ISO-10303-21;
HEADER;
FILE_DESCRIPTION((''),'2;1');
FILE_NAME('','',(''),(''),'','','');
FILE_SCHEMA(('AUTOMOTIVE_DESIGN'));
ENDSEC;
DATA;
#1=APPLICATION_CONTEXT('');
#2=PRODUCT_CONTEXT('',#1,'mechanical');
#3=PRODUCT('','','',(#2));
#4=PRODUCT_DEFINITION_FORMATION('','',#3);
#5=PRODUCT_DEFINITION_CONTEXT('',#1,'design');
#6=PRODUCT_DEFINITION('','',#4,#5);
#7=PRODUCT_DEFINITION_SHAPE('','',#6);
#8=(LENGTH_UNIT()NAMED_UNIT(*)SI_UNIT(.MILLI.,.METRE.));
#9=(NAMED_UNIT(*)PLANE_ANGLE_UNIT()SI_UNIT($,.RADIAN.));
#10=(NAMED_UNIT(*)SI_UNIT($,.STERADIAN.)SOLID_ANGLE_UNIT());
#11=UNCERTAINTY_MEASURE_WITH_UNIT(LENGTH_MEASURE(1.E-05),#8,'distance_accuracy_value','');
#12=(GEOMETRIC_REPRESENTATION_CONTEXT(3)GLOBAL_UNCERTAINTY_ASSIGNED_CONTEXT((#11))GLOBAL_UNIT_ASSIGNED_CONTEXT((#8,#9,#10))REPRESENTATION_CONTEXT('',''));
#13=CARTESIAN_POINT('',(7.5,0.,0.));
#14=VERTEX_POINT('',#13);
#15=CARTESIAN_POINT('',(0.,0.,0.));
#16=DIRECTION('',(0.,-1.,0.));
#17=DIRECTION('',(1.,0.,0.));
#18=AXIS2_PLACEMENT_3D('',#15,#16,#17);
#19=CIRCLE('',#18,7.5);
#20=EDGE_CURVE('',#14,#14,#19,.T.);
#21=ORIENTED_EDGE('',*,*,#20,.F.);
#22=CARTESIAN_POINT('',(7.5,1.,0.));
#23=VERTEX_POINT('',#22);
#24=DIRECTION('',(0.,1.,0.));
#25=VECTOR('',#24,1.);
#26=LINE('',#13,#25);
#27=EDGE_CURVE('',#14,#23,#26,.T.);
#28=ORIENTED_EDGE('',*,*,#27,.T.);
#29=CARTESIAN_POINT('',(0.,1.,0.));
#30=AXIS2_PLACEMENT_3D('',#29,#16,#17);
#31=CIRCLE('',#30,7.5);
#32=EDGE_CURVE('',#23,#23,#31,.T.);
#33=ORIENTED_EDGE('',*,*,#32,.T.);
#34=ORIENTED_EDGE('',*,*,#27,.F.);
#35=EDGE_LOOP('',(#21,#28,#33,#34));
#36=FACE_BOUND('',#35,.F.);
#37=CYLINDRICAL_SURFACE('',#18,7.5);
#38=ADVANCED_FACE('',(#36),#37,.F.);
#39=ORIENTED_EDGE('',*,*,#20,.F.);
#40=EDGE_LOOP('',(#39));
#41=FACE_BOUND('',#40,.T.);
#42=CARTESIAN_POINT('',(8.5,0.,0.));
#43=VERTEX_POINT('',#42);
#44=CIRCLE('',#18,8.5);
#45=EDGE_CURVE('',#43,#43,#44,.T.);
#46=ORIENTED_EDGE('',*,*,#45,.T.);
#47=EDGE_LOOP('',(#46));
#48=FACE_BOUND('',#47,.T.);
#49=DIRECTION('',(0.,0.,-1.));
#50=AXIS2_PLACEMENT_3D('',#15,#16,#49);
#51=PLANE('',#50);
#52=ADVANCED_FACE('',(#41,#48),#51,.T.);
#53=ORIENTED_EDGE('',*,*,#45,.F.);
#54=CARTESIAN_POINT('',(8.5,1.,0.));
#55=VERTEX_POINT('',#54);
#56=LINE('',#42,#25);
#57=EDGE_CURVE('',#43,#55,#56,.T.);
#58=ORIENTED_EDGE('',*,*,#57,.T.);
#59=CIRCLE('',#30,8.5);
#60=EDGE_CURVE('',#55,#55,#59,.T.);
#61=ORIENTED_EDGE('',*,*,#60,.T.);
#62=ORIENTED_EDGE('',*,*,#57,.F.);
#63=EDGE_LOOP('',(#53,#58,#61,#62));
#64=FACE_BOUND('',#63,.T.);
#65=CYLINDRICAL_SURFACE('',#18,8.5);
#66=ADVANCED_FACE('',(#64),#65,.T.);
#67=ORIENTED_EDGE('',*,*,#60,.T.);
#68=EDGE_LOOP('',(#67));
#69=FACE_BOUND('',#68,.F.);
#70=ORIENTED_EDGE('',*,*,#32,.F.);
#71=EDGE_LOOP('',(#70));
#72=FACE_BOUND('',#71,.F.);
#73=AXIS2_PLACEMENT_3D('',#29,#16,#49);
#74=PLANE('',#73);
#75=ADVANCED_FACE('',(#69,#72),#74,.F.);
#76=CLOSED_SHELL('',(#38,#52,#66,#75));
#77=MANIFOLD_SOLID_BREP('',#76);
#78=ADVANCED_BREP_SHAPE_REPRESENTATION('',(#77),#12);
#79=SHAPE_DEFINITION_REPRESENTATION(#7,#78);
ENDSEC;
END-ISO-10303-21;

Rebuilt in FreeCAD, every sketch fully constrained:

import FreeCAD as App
import Part
import Sketcher
Q = App.Units.Quantity

doc = App.newDocument("Part")
body = doc.addObject("PartDesign::Body", "Body")

# Sketch on XZ plane
sketch1 = body.newObject("Sketcher::SketchObject", "Sketch")
sketch1.AttachmentSupport = (doc.getObject("XZ_Plane"), [""])
sketch1.MapMode = "FlatFace"
sketch1.addGeometry(Part.Circle(App.Vector(0, 0, 0), App.Vector(0, 0, 1), 8.5), False)
sketch1.addGeometry(Part.Circle(App.Vector(0, 0, 0), App.Vector(0, 0, 1), 7.5), False)
sketch1.addConstraint(Sketcher.Constraint("Coincident", 0, 3, -1, 1))
sketch1.addConstraint(Sketcher.Constraint("Coincident", 1, 3, -1, 1))
sketch1.addConstraint(Sketcher.Constraint("Diameter", 0, Q("17 mm")))
sketch1.addConstraint(Sketcher.Constraint("Diameter", 1, Q("15 mm")))
pad1 = body.newObject("PartDesign::Pad", "Pad")
pad1.Profile = sketch1
pad1.Length = 1
pad1.Reversed = True

doc.recompute()
